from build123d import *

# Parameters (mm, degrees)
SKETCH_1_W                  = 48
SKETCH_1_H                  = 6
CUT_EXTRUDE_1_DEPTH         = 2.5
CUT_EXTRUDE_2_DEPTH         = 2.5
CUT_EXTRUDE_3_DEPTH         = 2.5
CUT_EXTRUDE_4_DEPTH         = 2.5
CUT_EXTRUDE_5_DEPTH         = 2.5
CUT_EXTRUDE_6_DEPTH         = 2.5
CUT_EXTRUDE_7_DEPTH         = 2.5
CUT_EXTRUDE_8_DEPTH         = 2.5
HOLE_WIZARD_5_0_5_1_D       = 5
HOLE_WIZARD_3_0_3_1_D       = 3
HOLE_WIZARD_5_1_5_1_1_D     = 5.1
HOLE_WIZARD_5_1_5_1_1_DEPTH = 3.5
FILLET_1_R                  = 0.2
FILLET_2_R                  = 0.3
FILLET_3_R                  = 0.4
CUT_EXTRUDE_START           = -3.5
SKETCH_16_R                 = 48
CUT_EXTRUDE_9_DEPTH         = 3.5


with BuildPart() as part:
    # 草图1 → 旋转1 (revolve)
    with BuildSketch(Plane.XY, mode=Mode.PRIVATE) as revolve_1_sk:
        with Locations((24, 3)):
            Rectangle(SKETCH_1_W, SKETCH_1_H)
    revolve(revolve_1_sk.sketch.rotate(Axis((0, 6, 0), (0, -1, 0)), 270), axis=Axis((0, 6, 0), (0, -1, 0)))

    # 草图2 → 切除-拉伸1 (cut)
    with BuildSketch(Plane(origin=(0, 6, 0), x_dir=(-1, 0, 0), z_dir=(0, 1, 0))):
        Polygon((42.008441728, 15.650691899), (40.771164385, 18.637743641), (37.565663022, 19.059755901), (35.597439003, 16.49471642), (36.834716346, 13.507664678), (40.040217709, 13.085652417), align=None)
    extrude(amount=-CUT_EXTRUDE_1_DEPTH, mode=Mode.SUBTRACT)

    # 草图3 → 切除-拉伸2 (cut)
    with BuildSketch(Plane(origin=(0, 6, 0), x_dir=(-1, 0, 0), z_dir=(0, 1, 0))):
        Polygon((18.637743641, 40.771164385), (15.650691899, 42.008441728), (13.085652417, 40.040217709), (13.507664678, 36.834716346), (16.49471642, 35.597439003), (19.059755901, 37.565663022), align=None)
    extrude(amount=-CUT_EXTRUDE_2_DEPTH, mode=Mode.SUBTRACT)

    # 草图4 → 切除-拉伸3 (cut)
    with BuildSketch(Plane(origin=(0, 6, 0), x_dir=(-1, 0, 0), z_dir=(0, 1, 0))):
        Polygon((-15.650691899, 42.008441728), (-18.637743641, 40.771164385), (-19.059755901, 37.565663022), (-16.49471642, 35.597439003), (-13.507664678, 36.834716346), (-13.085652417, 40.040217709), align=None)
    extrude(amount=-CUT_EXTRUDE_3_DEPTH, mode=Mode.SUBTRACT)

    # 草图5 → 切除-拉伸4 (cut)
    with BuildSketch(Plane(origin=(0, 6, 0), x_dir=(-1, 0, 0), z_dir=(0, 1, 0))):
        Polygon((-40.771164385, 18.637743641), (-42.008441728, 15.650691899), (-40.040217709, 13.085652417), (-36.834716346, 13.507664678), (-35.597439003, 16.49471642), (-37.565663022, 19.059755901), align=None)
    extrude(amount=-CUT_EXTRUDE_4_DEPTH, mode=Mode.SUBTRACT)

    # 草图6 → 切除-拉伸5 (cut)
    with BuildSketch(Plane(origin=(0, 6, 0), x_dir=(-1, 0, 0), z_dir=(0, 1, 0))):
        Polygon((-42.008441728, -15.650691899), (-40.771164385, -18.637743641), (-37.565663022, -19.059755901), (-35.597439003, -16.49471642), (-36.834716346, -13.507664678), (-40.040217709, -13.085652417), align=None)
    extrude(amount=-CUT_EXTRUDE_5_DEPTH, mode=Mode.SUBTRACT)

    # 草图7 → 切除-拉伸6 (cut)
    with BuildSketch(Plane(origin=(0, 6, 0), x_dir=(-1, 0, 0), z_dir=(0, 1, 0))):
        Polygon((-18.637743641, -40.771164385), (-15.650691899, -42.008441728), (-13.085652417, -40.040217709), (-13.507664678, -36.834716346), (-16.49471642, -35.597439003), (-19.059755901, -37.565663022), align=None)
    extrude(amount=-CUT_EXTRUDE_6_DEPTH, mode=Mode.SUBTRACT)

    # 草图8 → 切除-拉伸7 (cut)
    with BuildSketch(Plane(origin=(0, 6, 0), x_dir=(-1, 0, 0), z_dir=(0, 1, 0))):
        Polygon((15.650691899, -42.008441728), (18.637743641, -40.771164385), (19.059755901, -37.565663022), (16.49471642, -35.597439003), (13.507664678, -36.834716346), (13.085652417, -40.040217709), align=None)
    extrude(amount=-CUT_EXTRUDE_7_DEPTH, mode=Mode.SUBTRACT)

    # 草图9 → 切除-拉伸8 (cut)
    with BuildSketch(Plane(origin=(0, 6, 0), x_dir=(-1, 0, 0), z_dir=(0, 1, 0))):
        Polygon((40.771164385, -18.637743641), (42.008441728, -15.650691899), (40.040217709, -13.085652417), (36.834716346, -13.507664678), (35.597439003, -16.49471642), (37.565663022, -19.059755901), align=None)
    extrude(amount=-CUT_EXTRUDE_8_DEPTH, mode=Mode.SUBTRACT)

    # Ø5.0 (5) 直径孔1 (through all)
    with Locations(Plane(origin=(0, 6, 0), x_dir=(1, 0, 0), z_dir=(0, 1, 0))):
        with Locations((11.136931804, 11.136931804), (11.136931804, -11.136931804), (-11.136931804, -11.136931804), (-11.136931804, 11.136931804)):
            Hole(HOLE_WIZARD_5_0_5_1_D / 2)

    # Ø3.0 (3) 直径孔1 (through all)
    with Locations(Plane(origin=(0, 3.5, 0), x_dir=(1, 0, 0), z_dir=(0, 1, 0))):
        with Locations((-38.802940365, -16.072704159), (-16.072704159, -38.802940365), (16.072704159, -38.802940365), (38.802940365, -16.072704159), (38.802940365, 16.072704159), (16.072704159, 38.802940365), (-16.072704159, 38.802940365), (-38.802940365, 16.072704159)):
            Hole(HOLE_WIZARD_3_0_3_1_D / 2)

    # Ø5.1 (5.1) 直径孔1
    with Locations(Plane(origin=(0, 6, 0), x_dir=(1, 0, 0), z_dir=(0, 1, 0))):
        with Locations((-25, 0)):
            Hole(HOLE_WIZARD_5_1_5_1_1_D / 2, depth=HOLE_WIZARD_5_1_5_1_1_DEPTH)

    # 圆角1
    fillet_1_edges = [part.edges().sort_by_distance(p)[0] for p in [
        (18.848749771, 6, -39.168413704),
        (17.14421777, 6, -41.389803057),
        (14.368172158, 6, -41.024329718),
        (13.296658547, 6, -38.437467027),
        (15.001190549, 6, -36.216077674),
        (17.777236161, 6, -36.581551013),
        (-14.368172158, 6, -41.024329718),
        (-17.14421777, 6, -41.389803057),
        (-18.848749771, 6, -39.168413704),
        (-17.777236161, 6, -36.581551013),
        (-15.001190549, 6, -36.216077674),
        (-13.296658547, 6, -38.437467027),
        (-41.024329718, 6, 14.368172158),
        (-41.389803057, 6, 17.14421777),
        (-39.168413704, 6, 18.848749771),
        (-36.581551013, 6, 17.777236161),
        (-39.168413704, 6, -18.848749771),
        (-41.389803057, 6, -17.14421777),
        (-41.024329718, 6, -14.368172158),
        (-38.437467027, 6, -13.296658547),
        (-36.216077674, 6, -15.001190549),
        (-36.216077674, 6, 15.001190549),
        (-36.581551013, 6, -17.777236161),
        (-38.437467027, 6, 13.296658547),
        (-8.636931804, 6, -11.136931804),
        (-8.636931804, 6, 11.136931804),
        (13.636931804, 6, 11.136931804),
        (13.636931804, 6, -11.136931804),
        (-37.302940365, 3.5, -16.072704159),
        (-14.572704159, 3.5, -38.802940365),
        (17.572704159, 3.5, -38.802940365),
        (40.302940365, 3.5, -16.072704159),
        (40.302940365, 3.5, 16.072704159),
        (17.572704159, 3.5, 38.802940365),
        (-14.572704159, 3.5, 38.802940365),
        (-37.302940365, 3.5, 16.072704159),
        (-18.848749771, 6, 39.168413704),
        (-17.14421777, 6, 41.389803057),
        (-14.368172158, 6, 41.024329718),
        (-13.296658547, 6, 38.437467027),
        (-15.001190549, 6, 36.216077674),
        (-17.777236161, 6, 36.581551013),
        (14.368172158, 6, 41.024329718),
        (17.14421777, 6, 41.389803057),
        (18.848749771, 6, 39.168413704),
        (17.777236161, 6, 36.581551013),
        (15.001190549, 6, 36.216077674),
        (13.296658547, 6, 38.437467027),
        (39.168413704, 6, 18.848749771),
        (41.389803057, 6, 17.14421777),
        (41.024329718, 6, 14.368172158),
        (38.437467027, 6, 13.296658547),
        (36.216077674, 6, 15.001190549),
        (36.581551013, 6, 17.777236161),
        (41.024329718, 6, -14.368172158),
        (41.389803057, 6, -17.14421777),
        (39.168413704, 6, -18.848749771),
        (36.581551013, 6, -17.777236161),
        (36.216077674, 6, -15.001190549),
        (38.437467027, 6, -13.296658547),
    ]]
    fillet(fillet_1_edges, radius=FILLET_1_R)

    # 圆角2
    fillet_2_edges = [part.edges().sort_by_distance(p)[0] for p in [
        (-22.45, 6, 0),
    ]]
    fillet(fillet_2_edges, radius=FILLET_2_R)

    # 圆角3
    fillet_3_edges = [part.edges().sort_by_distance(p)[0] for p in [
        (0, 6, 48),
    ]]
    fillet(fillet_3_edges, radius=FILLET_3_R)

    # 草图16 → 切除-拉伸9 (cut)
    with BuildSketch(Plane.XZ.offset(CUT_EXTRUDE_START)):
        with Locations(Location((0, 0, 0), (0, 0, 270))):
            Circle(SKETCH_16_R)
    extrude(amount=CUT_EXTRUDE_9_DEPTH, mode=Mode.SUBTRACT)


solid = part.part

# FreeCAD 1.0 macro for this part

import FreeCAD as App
import Part
import Sketcher
Q = App.Units.Quantity


def edges_at(feature, points):
    """Names of the edges that pass closest to the given points."""
    edges = feature.Shape.Edges
    near = lambda p: min(range(len(edges)), key=lambda i: edges[i].distToShape(Part.Vertex(*p))[0])
    return sorted({f"Edge{near(p) + 1}" for p in points})


def add_polygon(sketch, points):
    """Adds a closed chain of lines whose ends are joined by coincident constraints."""
    first, n = sketch.GeometryCount, len(points)
    for a, b in zip(points, points[1:] + points[:1]):
        sketch.addGeometry(Part.LineSegment(App.Vector(*a, 0), App.Vector(*b, 0)), False)
    for i in range(n):
        sketch.addConstraint(Sketcher.Constraint("Coincident", first + i, 2, first + (i + 1) % n, 1))

doc = App.newDocument("Part")
body = doc.addObject("PartDesign::Body", "Body")

# Sketch on XY plane
sketch1 = doc.addObject("Sketcher::SketchObject", "Sketch")
body.addObject(sketch1)
sketch1.AttachmentSupport = (doc.XY_Plane, [""])
sketch1.MapMode = "FlatFace"
add_polygon(sketch1, [(0, 6), (0, 0), (48, 0), (48, 6)])  # lines 0-3
sketch1.addConstraint([
    Sketcher.Constraint("Vertical", 0),
    Sketcher.Constraint("Horizontal", 1),
    Sketcher.Constraint("Vertical", 2),
    Sketcher.Constraint("Horizontal", 3),
    Sketcher.Constraint("Coincident", 0, 2, -1, 1),
    Sketcher.Constraint("DistanceX", 1, 1, 1, 2, 48.0),
    Sketcher.Constraint("DistanceY", 0, 2, 0, 1, 6.0),
])
revolution = doc.addObject("PartDesign::Revolution", "Revolution")
body.addObject(revolution)
revolution.Profile = sketch1
revolution.ReferenceAxis = (sketch1, ["V_Axis"])
revolution.Angle = 360

# Sketch on XZ plane
sketch2 = doc.addObject("Sketcher::SketchObject", "Sketch001")
body.addObject(sketch2)
sketch2.AttachmentSupport = (doc.XZ_Plane, [""])
sketch2.MapMode = "FlatFace"
sketch2.AttachmentOffset = App.Placement(App.Vector(0, 0, -6), App.Rotation())
add_polygon(sketch2, [(-42, 15.7), (-40.8, 18.6), (-37.6, 19.1), (-35.6, 16.5), (-36.8, 13.5), (-40, 13.1)])  # lines 0-5
sketch2.addConstraint([
    Sketcher.Constraint("Parallel", 0, 3),
    Sketcher.Constraint("Parallel", 1, 4),
    Sketcher.Constraint("Parallel", 2, 5),
    Sketcher.Constraint("Equal", 0, 1),
    Sketcher.Constraint("Equal", 1, 2),
    Sketcher.Constraint("Equal", 2, 3),
    Sketcher.Constraint("Angle", 0, Q("67.5 deg")),
    Sketcher.Constraint("Angle", 1, Q("7.5 deg")),
    Sketcher.Constraint("Angle", 2, Q("-52.5 deg")),
    Sketcher.Constraint("DistanceX", 0, 2, 1, 2, 3.205501),
    Sketcher.Constraint("DistanceX", 2, 2, -1, 1, 35.597439),
    Sketcher.Constraint("DistanceY", -1, 1, 5, 2, 15.650692),
])
pocket1 = doc.addObject("PartDesign::Pocket", "Pocket")
body.addObject(pocket1)
pocket1.Profile = sketch2
pocket1.Length = 2.5
pocket1.Reversed = True

# Sketch on XZ plane
sketch3 = doc.addObject("Sketcher::SketchObject", "Sketch002")
body.addObject(sketch3)
sketch3.AttachmentSupport = (doc.XZ_Plane, [""])
sketch3.MapMode = "FlatFace"
sketch3.AttachmentOffset = App.Placement(App.Vector(0, 0, -6), App.Rotation())
add_polygon(sketch3, [(-18.6, 40.8), (-15.7, 42), (-13.1, 40), (-13.5, 36.8), (-16.5, 35.6), (-19.1, 37.6)])  # lines 0-5
sketch3.addConstraint([
    Sketcher.Constraint("Parallel", 0, 3),
    Sketcher.Constraint("Parallel", 1, 4),
    Sketcher.Constraint("Parallel", 2, 5),
    Sketcher.Constraint("Equal", 0, 1),
    Sketcher.Constraint("Equal", 1, 2),
    Sketcher.Constraint("Equal", 2, 3),
    Sketcher.Constraint("Angle", 0, Q("22.5 deg")),
    Sketcher.Constraint("Angle", 1, Q("-37.5 deg")),
    Sketcher.Constraint("Angle", 2, Q("-97.5 deg")),
    Sketcher.Constraint("DistanceY", 2, 2, 1, 2, 3.205501),
    Sketcher.Constraint("DistanceX", 0, 2, -1, 1, 15.650692),
    Sketcher.Constraint("DistanceY", -1, 1, 0, 2, 42.008442),
])
pocket2 = doc.addObject("PartDesign::Pocket", "Pocket001")
body.addObject(pocket2)
pocket2.Profile = sketch3
pocket2.Length = 2.5
pocket2.Reversed = True

# Sketch on XZ plane
sketch4 = doc.addObject("Sketcher::SketchObject", "Sketch003")
body.addObject(sketch4)
sketch4.AttachmentSupport = (doc.XZ_Plane, [""])
sketch4.MapMode = "FlatFace"
sketch4.AttachmentOffset = App.Placement(App.Vector(0, 0, -6), App.Rotation())
add_polygon(sketch4, [(15.7, 42), (18.6, 40.8), (19.1, 37.6), (16.5, 35.6), (13.5, 36.8), (13.1, 40)])  # lines 0-5
sketch4.addConstraint([
    Sketcher.Constraint("Parallel", 0, 3),
    Sketcher.Constraint("Parallel", 1, 4),
    Sketcher.Constraint("Parallel", 2, 5),
    Sketcher.Constraint("Equal", 0, 1),
    Sketcher.Constraint("Equal", 1, 2),
    Sketcher.Constraint("Equal", 2, 3),
    Sketcher.Constraint("Angle", 0, Q("-22.5 deg")),
    Sketcher.Constraint("Angle", 1, Q("-82.5 deg")),
    Sketcher.Constraint("Angle", 2, Q("-142.5 deg")),
    Sketcher.Constraint("DistanceY", 1, 2, 0, 2, 3.205501),
    Sketcher.Constraint("DistanceY", -1, 1, 2, 2, 35.597439),
    Sketcher.Constraint("DistanceX", -1, 1, 5, 2, 15.650692),
])
pocket3 = doc.addObject("PartDesign::Pocket", "Pocket002")
body.addObject(pocket3)
pocket3.Profile = sketch4
pocket3.Length = 2.5
pocket3.Reversed = True

# Sketch on XZ plane
sketch5 = doc.addObject("Sketcher::SketchObject", "Sketch004")
body.addObject(sketch5)
sketch5.AttachmentSupport = (doc.XZ_Plane, [""])
sketch5.MapMode = "FlatFace"
sketch5.AttachmentOffset = App.Placement(App.Vector(0, 0, -6), App.Rotation())
add_polygon(sketch5, [(40.8, 18.6), (42, 15.7), (40, 13.1), (36.8, 13.5), (35.6, 16.5), (37.6, 19.1)])  # lines 0-5
sketch5.addConstraint([
    Sketcher.Constraint("Parallel", 0, 3),
    Sketcher.Constraint("Parallel", 1, 4),
    Sketcher.Constraint("Parallel", 2, 5),
    Sketcher.Constraint("Equal", 0, 1),
    Sketcher.Constraint("Equal", 1, 2),
    Sketcher.Constraint("Equal", 2, 3),
    Sketcher.Constraint("Angle", 0, Q("-67.5 deg")),
    Sketcher.Constraint("Angle", 1, Q("-127.5 deg")),
    Sketcher.Constraint("Angle", 2, Q("172.5 deg")),
    Sketcher.Constraint("DistanceX", 2, 2, 1, 2, 3.205501),
    Sketcher.Constraint("DistanceX", -1, 1, 0, 2, 42.008442),
    Sketcher.Constraint("DistanceY", -1, 1, 0, 2, 15.650692),
])
pocket4 = doc.addObject("PartDesign::Pocket", "Pocket003")
body.addObject(pocket4)
pocket4.Profile = sketch5
pocket4.Length = 2.5
pocket4.Reversed = True

# Sketch on XZ plane
sketch6 = doc.addObject("Sketcher::SketchObject", "Sketch005")
body.addObject(sketch6)
sketch6.AttachmentSupport = (doc.XZ_Plane, [""])
sketch6.MapMode = "FlatFace"
sketch6.AttachmentOffset = App.Placement(App.Vector(0, 0, -6), App.Rotation())
add_polygon(sketch6, [(42, -15.7), (40.8, -18.6), (37.6, -19.1), (35.6, -16.5), (36.8, -13.5), (40, -13.1)])  # lines 0-5
sketch6.addConstraint([
    Sketcher.Constraint("Parallel", 0, 3),
    Sketcher.Constraint("Parallel", 1, 4),
    Sketcher.Constraint("Parallel", 2, 5),
    Sketcher.Constraint("Equal", 0, 1),
    Sketcher.Constraint("Equal", 1, 2),
    Sketcher.Constraint("Equal", 2, 3),
    Sketcher.Constraint("Angle", 0, Q("-112.5 deg")),
    Sketcher.Constraint("Angle", 1, Q("-172.5 deg")),
    Sketcher.Constraint("Angle", 2, Q("127.5 deg")),
    Sketcher.Constraint("DistanceX", 1, 2, 0, 2, 3.205501),
    Sketcher.Constraint("DistanceX", -1, 1, 2, 2, 35.597439),
    Sketcher.Constraint("DistanceY", 5, 2, -1, 1, 15.650692),
])
pocket5 = doc.addObject("PartDesign::Pocket", "Pocket004")
body.addObject(pocket5)
pocket5.Profile = sketch6
pocket5.Length = 2.5
pocket5.Reversed = True

# Sketch on XZ plane
sketch7 = doc.addObject("Sketcher::SketchObject", "Sketch006")
body.addObject(sketch7)
sketch7.AttachmentSupport = (doc.XZ_Plane, [""])
sketch7.MapMode = "FlatFace"
sketch7.AttachmentOffset = App.Placement(App.Vector(0, 0, -6), App.Rotation())
add_polygon(sketch7, [(18.6, -40.8), (15.7, -42), (13.1, -40), (13.5, -36.8), (16.5, -35.6), (19.1, -37.6)])  # lines 0-5
sketch7.addConstraint([
    Sketcher.Constraint("Parallel", 0, 3),
    Sketcher.Constraint("Parallel", 1, 4),
    Sketcher.Constraint("Parallel", 2, 5),
    Sketcher.Constraint("Equal", 0, 1),
    Sketcher.Constraint("Equal", 1, 2),
    Sketcher.Constraint("Equal", 2, 3),
    Sketcher.Constraint("Angle", 0, Q("-157.5 deg")),
    Sketcher.Constraint("Angle", 1, Q("142.5 deg")),
    Sketcher.Constraint("Angle", 2, Q("82.5 deg")),
    Sketcher.Constraint("DistanceY", 1, 2, 2, 2, 3.205501),
    Sketcher.Constraint("DistanceX", -1, 1, 0, 2, 15.650692),
    Sketcher.Constraint("DistanceY", 0, 2, -1, 1, 42.008442),
])
pocket6 = doc.addObject("PartDesign::Pocket", "Pocket005")
body.addObject(pocket6)
pocket6.Profile = sketch7
pocket6.Length = 2.5
pocket6.Reversed = True

# Sketch on XZ plane
sketch8 = doc.addObject("Sketcher::SketchObject", "Sketch007")
body.addObject(sketch8)
sketch8.AttachmentSupport = (doc.XZ_Plane, [""])
sketch8.MapMode = "FlatFace"
sketch8.AttachmentOffset = App.Placement(App.Vector(0, 0, -6), App.Rotation())
add_polygon(sketch8, [(-15.7, -42), (-18.6, -40.8), (-19.1, -37.6), (-16.5, -35.6), (-13.5, -36.8), (-13.1, -40)])  # lines 0-5
sketch8.addConstraint([
    Sketcher.Constraint("Parallel", 0, 3),
    Sketcher.Constraint("Parallel", 1, 4),
    Sketcher.Constraint("Parallel", 2, 5),
    Sketcher.Constraint("Equal", 0, 1),
    Sketcher.Constraint("Equal", 1, 2),
    Sketcher.Constraint("Equal", 2, 3),
    Sketcher.Constraint("Angle", 0, Q("157.5 deg")),
    Sketcher.Constraint("Angle", 1, Q("97.5 deg")),
    Sketcher.Constraint("Angle", 2, Q("37.5 deg")),
    Sketcher.Constraint("DistanceY", 0, 2, 1, 2, 3.205501),
    Sketcher.Constraint("DistanceY", 2, 2, -1, 1, 35.597439),
    Sketcher.Constraint("DistanceX", 5, 2, -1, 1, 15.650692),
])
pocket7 = doc.addObject("PartDesign::Pocket", "Pocket006")
body.addObject(pocket7)
pocket7.Profile = sketch8
pocket7.Length = 2.5
pocket7.Reversed = True

# Sketch on XZ plane
sketch9 = doc.addObject("Sketcher::SketchObject", "Sketch008")
body.addObject(sketch9)
sketch9.AttachmentSupport = (doc.XZ_Plane, [""])
sketch9.MapMode = "FlatFace"
sketch9.AttachmentOffset = App.Placement(App.Vector(0, 0, -6), App.Rotation())
add_polygon(sketch9, [(-40.8, -18.6), (-42, -15.7), (-40, -13.1), (-36.8, -13.5), (-35.6, -16.5), (-37.6, -19.1)])  # lines 0-5
sketch9.addConstraint([
    Sketcher.Constraint("Parallel", 0, 3),
    Sketcher.Constraint("Parallel", 1, 4),
    Sketcher.Constraint("Parallel", 2, 5),
    Sketcher.Constraint("Equal", 0, 1),
    Sketcher.Constraint("Equal", 1, 2),
    Sketcher.Constraint("Equal", 2, 3),
    Sketcher.Constraint("Angle", 0, Q("112.5 deg")),
    Sketcher.Constraint("Angle", 1, Q("52.5 deg")),
    Sketcher.Constraint("Angle", 2, Q("-7.5 deg")),
    Sketcher.Constraint("DistanceX", 1, 2, 2, 2, 3.205501),
    Sketcher.Constraint("DistanceX", 0, 2, -1, 1, 42.008442),
    Sketcher.Constraint("DistanceY", 0, 2, -1, 1, 15.650692),
])
pocket8 = doc.addObject("PartDesign::Pocket", "Pocket007")
body.addObject(pocket8)
pocket8.Profile = sketch9
pocket8.Length = 2.5
pocket8.Reversed = True

# Sketch on XZ plane
sketch10 = doc.addObject("Sketcher::SketchObject", "Sketch009")
body.addObject(sketch10)
sketch10.AttachmentSupport = (doc.XZ_Plane, [""])
sketch10.MapMode = "FlatFace"
sketch10.AttachmentOffset = App.Placement(App.Vector(0, 0, -6), App.Rotation())
sketch10.addGeometry([
    Part.Circle(App.Vector(11.1, -11.1, 0), App.Vector(0, 0, 1), 2.5),
    Part.Circle(App.Vector(11.1, 11.1, 0), App.Vector(0, 0, 1), 2.5),
    Part.Circle(App.Vector(-11.1, 11.1, 0), App.Vector(0, 0, 1), 2.5),
    Part.Circle(App.Vector(-11.1, -11.1, 0), App.Vector(0, 0, 1), 2.5),
], False)
sketch10.addConstraint([
    Sketcher.Constraint("Equal", 0, 1),
    Sketcher.Constraint("Equal", 1, 2),
    Sketcher.Constraint("Equal", 2, 3),
    Sketcher.Constraint("Symmetric", 0, 3, 2, 3, -1, 1),
    Sketcher.Constraint("Symmetric", 1, 3, 3, 3, -1, 1),
    Sketcher.Constraint("Symmetric", 1, 3, 2, 3, -2),
    Sketcher.Constraint("Diameter", 0, 5.0),
    Sketcher.Constraint("DistanceX", -1, 1, 0, 3, 11.136932),
    Sketcher.Constraint("DistanceY", 0, 3, -1, 1, 11.136932),
])
doc.recompute()
hole = doc.addObject("PartDesign::Hole", "Hole")
body.addObject(hole)
hole.Profile = sketch10
hole.ThreadType = "None"
hole.Diameter = 5
hole.DepthType = "ThroughAll"
hole.Reversed = True

# Sketch on XZ plane
sketch11 = doc.addObject("Sketcher::SketchObject", "Sketch010")
body.addObject(sketch11)
sketch11.AttachmentSupport = (doc.XZ_Plane, [""])
sketch11.MapMode = "FlatFace"
sketch11.AttachmentOffset = App.Placement(App.Vector(0, 0, -3.5), App.Rotation())
sketch11.addGeometry([
    Part.Circle(App.Vector(-38.8, 16.1, 0), App.Vector(0, 0, 1), 1.5),  # 0
    Part.Circle(App.Vector(-16.1, 38.8, 0), App.Vector(0, 0, 1), 1.5),  # 1
    Part.Circle(App.Vector(16.1, 38.8, 0), App.Vector(0, 0, 1), 1.5),  # 2
    Part.Circle(App.Vector(38.8, 16.1, 0), App.Vector(0, 0, 1), 1.5),  # 3
    Part.Circle(App.Vector(38.8, -16.1, 0), App.Vector(0, 0, 1), 1.5),  # 4
    Part.Circle(App.Vector(16.1, -38.8, 0), App.Vector(0, 0, 1), 1.5),  # 5
    Part.Circle(App.Vector(-16.1, -38.8, 0), App.Vector(0, 0, 1), 1.5),  # 6
    Part.Circle(App.Vector(-38.8, -16.1, 0), App.Vector(0, 0, 1), 1.5),  # 7
], False)
sketch11.addConstraint([
    Sketcher.Constraint("Equal", 0, 1),
    Sketcher.Constraint("Equal", 1, 2),
    Sketcher.Constraint("Equal", 2, 3),
    Sketcher.Constraint("Equal", 3, 4),
    Sketcher.Constraint("Equal", 4, 5),
    Sketcher.Constraint("Equal", 5, 6),
    Sketcher.Constraint("Equal", 6, 7),
    Sketcher.Constraint("Symmetric", 0, 3, 4, 3, -1, 1),
    Sketcher.Constraint("Symmetric", 1, 3, 5, 3, -1, 1),
    Sketcher.Constraint("Symmetric", 2, 3, 6, 3, -1, 1),
    Sketcher.Constraint("Symmetric", 3, 3, 7, 3, -1, 1),
    Sketcher.Constraint("Symmetric", 1, 3, 2, 3, -2),
    Sketcher.Constraint("Symmetric", 0, 3, 3, 3, -2),
    Sketcher.Constraint("Diameter", 0, 3.0),
    Sketcher.Constraint("DistanceX", 0, 3, -1, 1, 38.80294),
    Sketcher.Constraint("DistanceY", -1, 1, 1, 3, 38.80294),
    Sketcher.Constraint("DistanceX", 1, 3, 2, 3, 32.145408),
    Sketcher.Constraint("DistanceY", 4, 3, 3, 3, 32.145408),
])
doc.recompute()
hole2 = doc.addObject("PartDesign::Hole", "Hole001")
body.addObject(hole2)
hole2.Profile = sketch11
hole2.ThreadType = "None"
hole2.Diameter = 3
hole2.DepthType = "ThroughAll"
hole2.Reversed = True

# Sketch on XZ plane
sketch12 = doc.addObject("Sketcher::SketchObject", "Sketch011")
body.addObject(sketch12)
sketch12.AttachmentSupport = (doc.XZ_Plane, [""])
sketch12.MapMode = "FlatFace"
sketch12.AttachmentOffset = App.Placement(App.Vector(0, 0, -6), App.Rotation())
sketch12.addGeometry(Part.Circle(App.Vector(-25, 0, 0), App.Vector(0, 0, 1), 2.5), False)
sketch12.addConstraint([
    Sketcher.Constraint("PointOnObject", 0, 3, -1),
    Sketcher.Constraint("Diameter", 0, 5.1),
    Sketcher.Constraint("DistanceX", 0, 3, -1, 1, 25.0),
])
doc.recompute()
hole3 = doc.addObject("PartDesign::Hole", "Hole002")
body.addObject(hole3)
hole3.Profile = sketch12
hole3.ThreadType = "None"
hole3.Diameter = 5.1
hole3.DepthType = "Dimension"
hole3.Depth = 3.5
hole3.DrillPoint = "Flat"
hole3.Reversed = True
doc.recompute()

fillet = doc.addObject("PartDesign::Fillet", "Fillet")
body.addObject(fillet)
fillet.Base = (hole3, edges_at(hole3, [
    (18.849, 6, -39.168),
    (17.144, 6, -41.39),
    (14.368, 6, -41.024),
    (13.297, 6, -38.437),
    (15.001, 6, -36.216),
    (17.777, 6, -36.582),
    (-14.368, 6, -41.024),
    (-17.144, 6, -41.39),
    (-18.849, 6, -39.168),
    (-17.777, 6, -36.582),
    (-15.001, 6, -36.216),
    (-13.297, 6, -38.437),
    (-41.024, 6, 14.368),
    (-41.39, 6, 17.144),
    (-39.168, 6, 18.849),
    (-36.582, 6, 17.777),
    (-39.168, 6, -18.849),
    (-41.39, 6, -17.144),
    (-41.024, 6, -14.368),
    (-38.437, 6, -13.297),
    (-36.216, 6, -15.001),
    (-36.216, 6, 15.001),
    (-36.582, 6, -17.777),
    (-38.437, 6, 13.297),
    (-8.637, 6, -11.137),
    (-8.637, 6, 11.137),
    (13.637, 6, 11.137),
    (13.637, 6, -11.137),
    (-37.303, 3.5, -16.073),
    (-14.573, 3.5, -38.803),
    (17.573, 3.5, -38.803),
    (40.303, 3.5, -16.073),
    (40.303, 3.5, 16.073),
    (17.573, 3.5, 38.803),
    (-14.573, 3.5, 38.803),
    (-37.303, 3.5, 16.073),
    (-18.849, 6, 39.168),
    (-17.144, 6, 41.39),
    (-14.368, 6, 41.024),
    (-13.297, 6, 38.437),
    (-15.001, 6, 36.216),
    (-17.777, 6, 36.582),
    (14.368, 6, 41.024),
    (17.144, 6, 41.39),
    (18.849, 6, 39.168),
    (17.777, 6, 36.582),
    (15.001, 6, 36.216),
    (13.297, 6, 38.437),
    (39.168, 6, 18.849),
    (41.39, 6, 17.144),
    (41.024, 6, 14.368),
    (38.437, 6, 13.297),
    (36.216, 6, 15.001),
    (36.582, 6, 17.777),
    (41.024, 6, -14.368),
    (41.39, 6, -17.144),
    (39.168, 6, -18.849),
    (36.582, 6, -17.777),
    (36.216, 6, -15.001),
    (38.437, 6, -13.297),
]))
fillet.Radius = 0.2
doc.recompute()

fillet2 = doc.addObject("PartDesign::Fillet", "Fillet001")
body.addObject(fillet2)
fillet2.Base = (fillet, edges_at(fillet, [(-22.45, 6, 0)]))
fillet2.Radius = 0.3
doc.recompute()

fillet3 = doc.addObject("PartDesign::Fillet", "Fillet002")
body.addObject(fillet3)
fillet3.Base = (fillet2, edges_at(fillet2, [(0, 6, 48)]))
fillet3.Radius = 0.4

# Sketch on XZ plane
sketch13 = doc.addObject("Sketcher::SketchObject", "Sketch012")
body.addObject(sketch13)
sketch13.AttachmentSupport = (doc.XZ_Plane, [""])
sketch13.MapMode = "FlatFace"
sketch13.AttachmentOffset = App.Placement(App.Vector(0, 0, -3.5), App.Rotation())
sketch13.addGeometry(Part.Circle(App.Vector(0, 0, 0), App.Vector(0, 0, 1), 48), False)
sketch13.addConstraint([
    Sketcher.Constraint("Coincident", 0, 3, -1, 1),
    Sketcher.Constraint("Diameter", 0, 96.0),
])
pocket9 = doc.addObject("PartDesign::Pocket", "Pocket008")
body.addObject(pocket9)
pocket9.Profile = sketch13
pocket9.Length = 3.5
pocket9.Reversed = True

doc.recompute()
